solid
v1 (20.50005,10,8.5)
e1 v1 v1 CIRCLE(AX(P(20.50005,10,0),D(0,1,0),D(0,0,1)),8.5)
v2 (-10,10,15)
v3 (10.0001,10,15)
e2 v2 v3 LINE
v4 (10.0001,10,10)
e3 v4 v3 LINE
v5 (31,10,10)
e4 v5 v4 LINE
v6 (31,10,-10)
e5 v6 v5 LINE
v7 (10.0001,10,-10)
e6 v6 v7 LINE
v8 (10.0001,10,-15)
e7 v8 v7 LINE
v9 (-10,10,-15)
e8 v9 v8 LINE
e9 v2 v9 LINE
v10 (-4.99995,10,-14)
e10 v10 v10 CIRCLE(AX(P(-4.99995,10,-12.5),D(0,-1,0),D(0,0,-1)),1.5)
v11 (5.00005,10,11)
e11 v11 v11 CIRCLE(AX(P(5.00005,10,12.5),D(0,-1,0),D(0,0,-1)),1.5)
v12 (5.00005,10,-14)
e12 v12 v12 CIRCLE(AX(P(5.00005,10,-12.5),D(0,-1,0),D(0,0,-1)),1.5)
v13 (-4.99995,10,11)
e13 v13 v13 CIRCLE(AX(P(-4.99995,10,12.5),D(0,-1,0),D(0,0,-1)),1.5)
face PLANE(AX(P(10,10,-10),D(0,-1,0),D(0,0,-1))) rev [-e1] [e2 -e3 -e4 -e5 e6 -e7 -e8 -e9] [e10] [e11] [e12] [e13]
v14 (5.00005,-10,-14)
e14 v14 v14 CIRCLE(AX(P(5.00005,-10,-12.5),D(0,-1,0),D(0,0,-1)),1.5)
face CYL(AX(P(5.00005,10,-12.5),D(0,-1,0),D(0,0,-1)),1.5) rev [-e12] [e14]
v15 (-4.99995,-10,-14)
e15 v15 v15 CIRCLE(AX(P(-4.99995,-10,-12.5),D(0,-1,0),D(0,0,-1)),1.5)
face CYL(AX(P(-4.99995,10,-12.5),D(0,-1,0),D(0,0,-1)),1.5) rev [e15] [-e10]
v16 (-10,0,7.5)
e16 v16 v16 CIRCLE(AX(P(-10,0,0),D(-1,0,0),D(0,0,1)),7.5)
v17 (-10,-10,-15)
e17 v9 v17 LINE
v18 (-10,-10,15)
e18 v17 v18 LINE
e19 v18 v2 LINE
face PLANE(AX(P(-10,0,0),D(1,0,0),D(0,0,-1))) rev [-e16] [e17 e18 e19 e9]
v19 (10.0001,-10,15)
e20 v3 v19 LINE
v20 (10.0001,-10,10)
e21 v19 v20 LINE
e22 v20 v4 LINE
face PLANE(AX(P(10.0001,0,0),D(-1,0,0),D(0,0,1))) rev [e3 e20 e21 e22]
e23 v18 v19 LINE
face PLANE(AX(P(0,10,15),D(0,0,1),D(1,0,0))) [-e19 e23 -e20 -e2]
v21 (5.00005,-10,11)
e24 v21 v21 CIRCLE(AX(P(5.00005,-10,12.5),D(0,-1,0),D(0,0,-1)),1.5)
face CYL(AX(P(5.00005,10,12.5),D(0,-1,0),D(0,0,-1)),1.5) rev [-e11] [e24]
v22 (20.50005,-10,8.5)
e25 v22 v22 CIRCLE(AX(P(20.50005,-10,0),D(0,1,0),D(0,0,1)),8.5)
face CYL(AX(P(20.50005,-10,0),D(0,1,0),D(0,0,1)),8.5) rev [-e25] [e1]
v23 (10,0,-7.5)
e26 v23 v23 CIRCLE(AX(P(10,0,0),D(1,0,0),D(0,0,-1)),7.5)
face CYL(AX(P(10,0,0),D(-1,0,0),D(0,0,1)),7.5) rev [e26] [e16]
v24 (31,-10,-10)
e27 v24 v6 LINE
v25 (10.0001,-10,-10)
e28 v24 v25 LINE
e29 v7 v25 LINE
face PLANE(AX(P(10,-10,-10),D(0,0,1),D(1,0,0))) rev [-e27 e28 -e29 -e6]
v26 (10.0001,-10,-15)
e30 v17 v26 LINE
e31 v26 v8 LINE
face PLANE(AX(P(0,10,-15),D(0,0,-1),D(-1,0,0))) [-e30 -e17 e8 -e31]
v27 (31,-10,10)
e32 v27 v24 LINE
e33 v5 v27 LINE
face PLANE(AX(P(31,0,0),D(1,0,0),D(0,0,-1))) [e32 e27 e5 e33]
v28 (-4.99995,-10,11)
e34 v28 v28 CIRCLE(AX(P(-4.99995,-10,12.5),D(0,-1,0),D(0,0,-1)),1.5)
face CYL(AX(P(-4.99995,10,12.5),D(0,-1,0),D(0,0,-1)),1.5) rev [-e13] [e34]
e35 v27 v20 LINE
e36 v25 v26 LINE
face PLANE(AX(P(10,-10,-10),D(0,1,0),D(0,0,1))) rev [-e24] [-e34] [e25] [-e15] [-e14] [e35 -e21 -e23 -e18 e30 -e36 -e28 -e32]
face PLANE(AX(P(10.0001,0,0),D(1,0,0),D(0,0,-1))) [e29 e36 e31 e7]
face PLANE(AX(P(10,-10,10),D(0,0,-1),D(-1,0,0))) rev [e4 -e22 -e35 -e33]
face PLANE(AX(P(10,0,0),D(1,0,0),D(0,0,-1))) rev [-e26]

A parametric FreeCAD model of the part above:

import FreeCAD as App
import Part
import Sketcher
from FreeCAD import Vector

doc = App.newDocument("Part")
body = doc.addObject("PartDesign::Body", "Body")

# Sketch on YZ plane
sketch1 = body.newObject("Sketcher::SketchObject", "Sketch")
sketch1.AttachmentSupport = (doc.getObject("YZ_Plane"), [""])
sketch1.MapMode = "FlatFace"
sketch1.addGeometry([
    Part.LineSegment(Vector(10, 10, 0), Vector(-10, 10, 0)),  # 0
    Part.LineSegment(Vector(-10, 10, 0), Vector(-10, -10, 0)),  # 1
    Part.LineSegment(Vector(-10, -10, 0), Vector(10, -10, 0)),  # 2
    Part.LineSegment(Vector(10, -10, 0), Vector(10, 10, 0)),  # 3
    Part.Circle(Vector(0, 0, 0), Vector(0, 0, 1), 7.5),  # 4
], False)
sketch1.addConstraint([
    Sketcher.Constraint("Coincident", 0, 2, 1, 1),
    Sketcher.Constraint("Coincident", 1, 2, 2, 1),
    Sketcher.Constraint("Coincident", 2, 2, 3, 1),
    Sketcher.Constraint("Coincident", 3, 2, 0, 1),
    Sketcher.Constraint("Horizontal", 0),
    Sketcher.Constraint("Vertical", 1),
    Sketcher.Constraint("Horizontal", 2),
    Sketcher.Constraint("Vertical", 3),
    Sketcher.Constraint("Coincident", 4, 3, -1, 1),
    Sketcher.Constraint("Symmetric", 0, 2, 2, 2, -1, 1),
    Sketcher.Constraint("Equal", 2, 1),
    Sketcher.Constraint("Diameter", 4, 15.0),
    Sketcher.Constraint("DistanceX", 0, 2, 0, 1, 20.0),
])
pad1 = body.newObject("PartDesign::Pad", "Pad")
pad1.Profile = sketch1
pad1.Length = 10

# Sketch on YZ plane
sketch2 = body.newObject("Sketcher::SketchObject", "Sketch001")
sketch2.AttachmentSupport = (doc.getObject("YZ_Plane"), [""])
sketch2.MapMode = "FlatFace"
sketch2.AttachmentOffset = App.Placement(Vector(0, 0, 10), App.Rotation())
sketch2.addGeometry([
    Part.LineSegment(Vector(10, 15, 0), Vector(8, 15, 0)),  # 0
    Part.LineSegment(Vector(8, 15, 0), Vector(8, 10, 0)),  # 1
    Part.LineSegment(Vector(8, 10, 0), Vector(10, 10, 0)),  # 2
    Part.LineSegment(Vector(10, 10, 0), Vector(10, 15, 0)),  # 3
    Part.LineSegment(Vector(10, -10, 0), Vector(8, -10, 0)),  # 4
    Part.LineSegment(Vector(8, -10, 0), Vector(8, -15, 0)),  # 5
    Part.LineSegment(Vector(8, -15, 0), Vector(10, -15, 0)),  # 6
    Part.LineSegment(Vector(10, -15, 0), Vector(10, -10, 0)),  # 7
    Part.LineSegment(Vector(-8, -10, 0), Vector(-10, -10, 0)),  # 8
    Part.LineSegment(Vector(-10, -10, 0), Vector(-10, -15, 0)),  # 9
    Part.LineSegment(Vector(-10, -15, 0), Vector(-8, -15, 0)),  # 10
    Part.LineSegment(Vector(-8, -15, 0), Vector(-8, -10, 0)),  # 11
    Part.LineSegment(Vector(-8, 15, 0), Vector(-10, 15, 0)),  # 12
    Part.LineSegment(Vector(-10, 15, 0), Vector(-10, 10, 0)),  # 13
    Part.LineSegment(Vector(-10, 10, 0), Vector(-8, 10, 0)),  # 14
    Part.LineSegment(Vector(-8, 10, 0), Vector(-8, 15, 0)),  # 15
], False)
sketch2.addConstraint([
    Sketcher.Constraint("Coincident", 0, 2, 1, 1),
    Sketcher.Constraint("Coincident", 1, 2, 2, 1),
    Sketcher.Constraint("Coincident", 2, 2, 3, 1),
    Sketcher.Constraint("Coincident", 3, 2, 0, 1),
    Sketcher.Constraint("Coincident", 4, 2, 5, 1),
    Sketcher.Constraint("Coincident", 5, 2, 6, 1),
    Sketcher.Constraint("Coincident", 6, 2, 7, 1),
    Sketcher.Constraint("Coincident", 7, 2, 4, 1),
    Sketcher.Constraint("Coincident", 8, 2, 9, 1),
    Sketcher.Constraint("Coincident", 9, 2, 10, 1),
    Sketcher.Constraint("Coincident", 10, 2, 11, 1),
    Sketcher.Constraint("Coincident", 11, 2, 8, 1),
    Sketcher.Constraint("Coincident", 12, 2, 13, 1),
    Sketcher.Constraint("Coincident", 13, 2, 14, 1),
    Sketcher.Constraint("Coincident", 14, 2, 15, 1),
    Sketcher.Constraint("Coincident", 15, 2, 12, 1),
    Sketcher.Constraint("Horizontal", 0),
    Sketcher.Constraint("Vertical", 1),
    Sketcher.Constraint("Horizontal", 2),
    Sketcher.Constraint("Vertical", 3),
    Sketcher.Constraint("Horizontal", 4),
    Sketcher.Constraint("Vertical", 5),
    Sketcher.Constraint("Horizontal", 6),
    Sketcher.Constraint("Vertical", 7),
    Sketcher.Constraint("Horizontal", 8),
    Sketcher.Constraint("Vertical", 9),
    Sketcher.Constraint("Horizontal", 10),
    Sketcher.Constraint("Vertical", 11),
    Sketcher.Constraint("Horizontal", 12),
    Sketcher.Constraint("Vertical", 13),
    Sketcher.Constraint("Horizontal", 14),
    Sketcher.Constraint("Vertical", 15),
    Sketcher.Constraint("Symmetric", 2, 2, 8, 2, -1, 1),
    Sketcher.Constraint("Symmetric", 0, 2, 10, 2, -1, 1),
    Sketcher.Constraint("Symmetric", 6, 2, 12, 2, -1, 1),
    Sketcher.Constraint("Symmetric", 4, 2, 14, 2, -1, 1),
    Sketcher.Constraint("Symmetric", 7, 2, 8, 2, -2),
    Sketcher.Constraint("Symmetric", 5, 2, 10, 2, -2),
    Sketcher.Constraint("DistanceX", 0, 2, 0, 1, 2.0),
    Sketcher.Constraint("DistanceY", 1, 2, 1, 1, 5.0),
    Sketcher.Constraint("DistanceX", -1, 1, 0, 2, 8.0),
    Sketcher.Constraint("DistanceY", -1, 1, 0, 2, 15.0),
])
pad2 = body.newObject("PartDesign::Pad", "Pad001")
pad2.Profile = sketch2
pad2.Type = "TwoLengths"
pad2.Length = 0.0001
pad2.Length2 = 10

# Sketch on XZ plane
sketch3 = body.newObject("Sketcher::SketchObject", "Sketch002")
sketch3.AttachmentSupport = (doc.getObject("XZ_Plane"), [""])
sketch3.MapMode = "FlatFace"
sketch3.AttachmentOffset = App.Placement(Vector(0, 0, 10), App.Rotation())
sketch3.addGeometry(Part.Circle(Vector(5.00005, -12.5, 0), Vector(0, 0, 1), 1.5), False)
sketch3.addConstraint([
    Sketcher.Constraint("Diameter", 0, 3.0),
    Sketcher.Constraint("DistanceY", 0, 3, -1, 1, 12.5),
    Sketcher.Constraint("DistanceX", -1, 1, 0, 3, 5.00005),
])
pocket1 = body.newObject("PartDesign::Pocket", "Pocket")
pocket1.Profile = sketch3
pocket1.Type = "ThroughAll"

# Sketch on XZ plane
sketch4 = body.newObject("Sketcher::SketchObject", "Sketch003")
sketch4.AttachmentSupport = (doc.getObject("XZ_Plane"), [""])
sketch4.MapMode = "FlatFace"
sketch4.AttachmentOffset = App.Placement(Vector(0, 0, 10), App.Rotation())
sketch4.addGeometry(Part.Circle(Vector(5.00005, 12.5, 0), Vector(0, 0, 1), 1.5), False)
sketch4.addConstraint([
    Sketcher.Constraint("Diameter", 0, 3.0),
    Sketcher.Constraint("DistanceY", -1, 1, 0, 3, 12.5),
    Sketcher.Constraint("DistanceX", -1, 1, 0, 3, 5.00005),
])
pocket2 = body.newObject("PartDesign::Pocket", "Pocket001")
pocket2.Profile = sketch4
pocket2.Type = "ThroughAll"

# Sketch on YZ plane
sketch5 = body.newObject("Sketcher::SketchObject", "Sketch004")
sketch5.AttachmentSupport = (doc.getObject("YZ_Plane"), [""])
sketch5.MapMode = "FlatFace"
sketch5.AttachmentOffset = App.Placement(Vector(0, 0, 10), App.Rotation())
sketch5.addGeometry([
    Part.LineSegment(Vector(10, 10, 0), Vector(-10, 10, 0)),
    Part.LineSegment(Vector(-10, 10, 0), Vector(-10, -10, 0)),
    Part.LineSegment(Vector(-10, -10, 0), Vector(10, -10, 0)),
    Part.LineSegment(Vector(10, -10, 0), Vector(10, 10, 0)),
], False)
sketch5.addConstraint([
    Sketcher.Constraint("Coincident", 0, 2, 1, 1),
    Sketcher.Constraint("Coincident", 1, 2, 2, 1),
    Sketcher.Constraint("Coincident", 2, 2, 3, 1),
    Sketcher.Constraint("Coincident", 3, 2, 0, 1),
    Sketcher.Constraint("Horizontal", 0),
    Sketcher.Constraint("Vertical", 1),
    Sketcher.Constraint("Horizontal", 2),
    Sketcher.Constraint("Vertical", 3),
    Sketcher.Constraint("Symmetric", 0, 2, 2, 2, -1, 1),
    Sketcher.Constraint("Equal", 2, 1),
    Sketcher.Constraint("DistanceX", 0, 2, 0, 1, 20.0),
])
pad3 = body.newObject("PartDesign::Pad", "Pad002")
pad3.Profile = sketch5
pad3.Length = 21

# Sketch on XZ plane
sketch6 = body.newObject("Sketcher::SketchObject", "Sketch005")
sketch6.AttachmentSupport = (doc.getObject("XZ_Plane"), [""])
sketch6.MapMode = "FlatFace"
sketch6.AttachmentOffset = App.Placement(Vector(0, 0, -10), App.Rotation())
sketch6.addGeometry(Part.Circle(Vector(20.50005, 0, 0), Vector(0, 0, 1), 8.5), False)
sketch6.addConstraint([
    Sketcher.Constraint("PointOnObject", 0, 3, -1),
    Sketcher.Constraint("Diameter", 0, 17.0),
    Sketcher.Constraint("DistanceX", -1, 1, 0, 3, 20.50005),
])
pocket3 = body.newObject("PartDesign::Pocket", "Pocket002")
pocket3.Profile = sketch6
pocket3.Type = "ThroughAll"
pocket3.Reversed = True

# Sketch on XY plane
sketch7 = body.newObject("Sketcher::SketchObject", "Sketch006")
sketch7.AttachmentSupport = (doc.getObject("XY_Plane"), [""])
sketch7.MapMode = "FlatFace"
sketch7.AttachmentOffset = App.Placement(Vector(0, 0, -10), App.Rotation())
sketch7.addGeometry([
    Part.LineSegment(Vector(10.0001, 8, 0), Vector(10.0001, -8, 0)),
    Part.LineSegment(Vector(10.0001, -8, 0), Vector(0, -8, 0)),
    Part.LineSegment(Vector(0, -8, 0), Vector(0, 8, 0)),
    Part.LineSegment(Vector(0, 8, 0), Vector(10.0001, 8, 0)),
], False)
sketch7.addConstraint([
    Sketcher.Constraint("Coincident", 0, 2, 1, 1),
    Sketcher.Constraint("Coincident", 1, 2, 2, 1),
    Sketcher.Constraint("Coincident", 2, 2, 3, 1),
    Sketcher.Constraint("Coincident", 3, 2, 0, 1),
    Sketcher.Constraint("Vertical", 0),
    Sketcher.Constraint("Horizontal", 1),
    Sketcher.Constraint("Vertical", 2),
    Sketcher.Constraint("Horizontal", 3),
    Sketcher.Constraint("Symmetric", 1, 2, 2, 2, -1, 1),
    Sketcher.Constraint("DistanceY", 0, 2, 0, 1, 16.0),
    Sketcher.Constraint("DistanceX", 1, 2, 1, 1, 10.0001),
])
pad4 = body.newObject("PartDesign::Pad", "Pad003")
pad4.Profile = sketch7
pad4.Length = 5
pad4.Reversed = True

# Sketch on XY plane
sketch8 = body.newObject("Sketcher::SketchObject", "Sketch007")
sketch8.AttachmentSupport = (doc.getObject("XY_Plane"), [""])
sketch8.MapMode = "FlatFace"
sketch8.AttachmentOffset = App.Placement(Vector(0, 0, 10), App.Rotation())
sketch8.addGeometry([
    Part.LineSegment(Vector(0, 8, 0), Vector(0, -9, 0)),
    Part.LineSegment(Vector(0, -9, 0), Vector(10.0001, -9, 0)),
    Part.LineSegment(Vector(10.0001, -9, 0), Vector(10.0001, 8, 0)),
    Part.LineSegment(Vector(10.0001, 8, 0), Vector(0, 8, 0)),
], False)
sketch8.addConstraint([
    Sketcher.Constraint("Coincident", 0, 2, 1, 1),
    Sketcher.Constraint("Coincident", 1, 2, 2, 1),
    Sketcher.Constraint("Coincident", 2, 2, 3, 1),
    Sketcher.Constraint("Coincident", 3, 2, 0, 1),
    Sketcher.Constraint("Vertical", 0),
    Sketcher.Constraint("Horizontal", 1),
    Sketcher.Constraint("Vertical", 2),
    Sketcher.Constraint("Horizontal", 3),
    Sketcher.Constraint("PointOnObject", 0, 2, -2),
    Sketcher.Constraint("DistanceY", 0, 2, 0, 1, 17.0),
    Sketcher.Constraint("DistanceY", 0, 2, -1, 1, 9.0),
    Sketcher.Constraint("DistanceX", 1, 1, 1, 2, 10.0001),
])
pad5 = body.newObject("PartDesign::Pad", "Pad004")
pad5.Profile = sketch8
pad5.Length = 5

# Sketch on XZ plane
sketch9 = body.newObject("Sketcher::SketchObject", "Sketch008")
sketch9.AttachmentSupport = (doc.getObject("XZ_Plane"), [""])
sketch9.MapMode = "FlatFace"
sketch9.AttachmentOffset = App.Placement(Vector(0, 0, -10), App.Rotation())
sketch9.addGeometry([
    Part.Circle(Vector(5.00005, 12.5, 0), Vector(0, 0, 1), 1.5),
    Part.Circle(Vector(5.00005, -12.5, 0), Vector(0, 0, 1), 1.5),
], False)
sketch9.addConstraint([
    Sketcher.Constraint("Equal", 0, 1),
    Sketcher.Constraint("Symmetric", 0, 3, 1, 3, -1),
    Sketcher.Constraint("Diameter", 0, 3.0),
    Sketcher.Constraint("DistanceY", 1, 3, 0, 3, 25.0),
    Sketcher.Constraint("DistanceX", -1, 1, 0, 3, 5.00005),
])
pocket4 = body.newObject("PartDesign::Pocket", "Pocket003")
pocket4.Profile = sketch9
pocket4.Type = "ThroughAll"
pocket4.Reversed = True

# Sketch on YZ plane
sketch10 = body.newObject("Sketcher::SketchObject", "Sketch009")
sketch10.AttachmentSupport = (doc.getObject("YZ_Plane"), [""])
sketch10.MapMode = "FlatFace"
sketch10.addGeometry([
    Part.LineSegment(Vector(10, -15, 0), Vector(-10, -15, 0)),
    Part.LineSegment(Vector(-10, -15, 0), Vector(-10, 15, 0)),
    Part.LineSegment(Vector(-10, 15, 0), Vector(10, 15, 0)),
    Part.LineSegment(Vector(10, 15, 0), Vector(10, -15, 0)),
], False)
sketch10.addConstraint([
    Sketcher.Constraint("Coincident", 0, 2, 1, 1),
    Sketcher.Constraint("Coincident", 1, 2, 2, 1),
    Sketcher.Constraint("Coincident", 2, 2, 3, 1),
    Sketcher.Constraint("Coincident", 3, 2, 0, 1),
    Sketcher.Constraint("Horizontal", 0),
    Sketcher.Constraint("Vertical", 1),
    Sketcher.Constraint("Horizontal", 2),
    Sketcher.Constraint("Vertical", 3),
    Sketcher.Constraint("Symmetric", 0, 2, 2, 2, -1, 1),
    Sketcher.Constraint("DistanceX", 0, 2, 0, 1, 20.0),
    Sketcher.Constraint("DistanceY", 1, 1, 1, 2, 30.0),
])
pad6 = body.newObject("PartDesign::Pad", "Pad005")
pad6.Profile = sketch10
pad6.Length = 10
pad6.Reversed = True

# Sketch on YZ plane
sketch11 = body.newObject("Sketcher::SketchObject", "Sketch010")
sketch11.AttachmentSupport = (doc.getObject("YZ_Plane"), [""])
sketch11.MapMode = "FlatFace"
sketch11.AttachmentOffset = App.Placement(Vector(0, 0, -10), App.Rotation())
sketch11.addGeometry(Part.Circle(Vector(0, 0, 0), Vector(0, 0, 1), 7.5), False)
sketch11.addConstraint([
    Sketcher.Constraint("Coincident", 0, 3, -1, 1),
    Sketcher.Constraint("Diameter", 0, 15.0),
])
pocket5 = body.newObject("PartDesign::Pocket", "Pocket004")
pocket5.Profile = sketch11
pocket5.Length = 10
pocket5.Reversed = True

# Sketch on XZ plane
sketch12 = body.newObject("Sketcher::SketchObject", "Sketch011")
sketch12.AttachmentSupport = (doc.getObject("XZ_Plane"), [""])
sketch12.MapMode = "FlatFace"
sketch12.AttachmentOffset = App.Placement(Vector(0, 0, 10), App.Rotation())
sketch12.addGeometry([
    Part.Circle(Vector(-4.99995, -12.5, 0), Vector(0, 0, 1), 1.5),
    Part.Circle(Vector(-4.99995, 12.5, 0), Vector(0, 0, 1), 1.5),
], False)
sketch12.addConstraint([
    Sketcher.Constraint("Equal", 0, 1),
    Sketcher.Constraint("Symmetric", 0, 3, 1, 3, -1),
    Sketcher.Constraint("Diameter", 0, 3.0),
    Sketcher.Constraint("DistanceY", 0, 3, 1, 3, 25.0),
    Sketcher.Constraint("DistanceX", 0, 3, -1, 1, 4.99995),
])
pocket6 = body.newObject("PartDesign::Pocket", "Pocket005")
pocket6.Profile = sketch12
pocket6.Length = 20

doc.recompute()
